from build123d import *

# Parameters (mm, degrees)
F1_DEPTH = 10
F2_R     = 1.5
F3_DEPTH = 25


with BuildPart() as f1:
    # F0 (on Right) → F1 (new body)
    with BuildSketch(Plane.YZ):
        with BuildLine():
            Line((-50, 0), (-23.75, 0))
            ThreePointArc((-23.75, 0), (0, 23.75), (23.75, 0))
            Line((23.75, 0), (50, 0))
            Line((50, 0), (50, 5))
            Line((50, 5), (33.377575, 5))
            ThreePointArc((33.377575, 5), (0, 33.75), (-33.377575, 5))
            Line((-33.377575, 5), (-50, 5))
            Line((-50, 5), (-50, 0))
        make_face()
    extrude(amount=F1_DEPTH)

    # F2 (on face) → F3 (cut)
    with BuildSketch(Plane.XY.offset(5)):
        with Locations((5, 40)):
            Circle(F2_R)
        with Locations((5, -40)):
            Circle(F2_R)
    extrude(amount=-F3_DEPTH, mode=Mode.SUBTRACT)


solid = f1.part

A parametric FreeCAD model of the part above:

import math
import FreeCAD as App
import Part
import Sketcher
Q = App.Units.Quantity

doc = App.newDocument("Part")
params = doc.addObject("Spreadsheet::Sheet", "Params")
for row, (alias, value) in enumerate([
    ("sketch1_height", "5 mm"),
    ("sketch1_radius", "23.75 mm"),
    ("sketch1_radius2", "33.75 mm"),
    ("pad1_length", "10 mm"),
    ("sketch2_diameter", "3 mm"),
    ("pocket1_length", "25 mm"),
], start=1):
    params.set(f"A{row}", alias)
    params.set(f"B{row}", "=" + value)
    params.setAlias(f"B{row}", alias)

body = doc.addObject("PartDesign::Body", "Body")

# Sketch on YZ plane
sketch1 = body.newObject("Sketcher::SketchObject", "Sketch")
sketch1.AttachmentSupport = (doc.getObject("YZ_Plane"), [""])
sketch1.MapMode = "FlatFace"
sketch1.addGeometry(Part.LineSegment(App.Vector(-50, 0, 0), App.Vector(-23.75, 0, 0)), False)
sketch1.addGeometry(Part.ArcOfCircle(Part.Circle(App.Vector(0, 0, 0), App.Vector(0, 0, 1), 23.75), math.radians(0), math.radians(180)), False)
sketch1.addGeometry(Part.LineSegment(App.Vector(23.75, 0, 0), App.Vector(50, 0, 0)), False)
sketch1.addGeometry(Part.LineSegment(App.Vector(50, 0, 0), App.Vector(50, 5, 0)), False)
sketch1.addGeometry(Part.LineSegment(App.Vector(50, 5, 0), App.Vector(33.377575, 5, 0)), False)
sketch1.addGeometry(Part.ArcOfCircle(Part.Circle(App.Vector(0, 0, 0), App.Vector(0, 0, 1), 33.75), math.radians(8.519625), math.radians(171.480375)), False)
sketch1.addGeometry(Part.LineSegment(App.Vector(-33.377575, 5, 0), App.Vector(-50, 5, 0)), False)
sketch1.addGeometry(Part.LineSegment(App.Vector(-50, 5, 0), App.Vector(-50, 0, 0)), False)
sketch1.addConstraint(Sketcher.Constraint("Coincident", 0, 2, 1, 2))
sketch1.addConstraint(Sketcher.Constraint("Coincident", 1, 1, 2, 1))
sketch1.addConstraint(Sketcher.Constraint("Coincident", 2, 2, 3, 1))
sketch1.addConstraint(Sketcher.Constraint("Coincident", 3, 2, 4, 1))
sketch1.addConstraint(Sketcher.Constraint("Coincident", 4, 2, 5, 1))
sketch1.addConstraint(Sketcher.Constraint("Coincident", 5, 2, 6, 1))
sketch1.addConstraint(Sketcher.Constraint("Coincident", 6, 2, 7, 1))
sketch1.addConstraint(Sketcher.Constraint("Coincident", 7, 2, 0, 1))
sketch1.addConstraint(Sketcher.Constraint("Horizontal", 0))
sketch1.addConstraint(Sketcher.Constraint("Horizontal", 2))
sketch1.addConstraint(Sketcher.Constraint("Vertical", 3))
sketch1.addConstraint(Sketcher.Constraint("Horizontal", 4))
sketch1.addConstraint(Sketcher.Constraint("Horizontal", 6))
sketch1.addConstraint(Sketcher.Constraint("Vertical", 7))
sketch1.addConstraint(Sketcher.Constraint("Coincident", 1, 3, -1, 1))
sketch1.addConstraint(Sketcher.Constraint("Coincident", 5, 3, -1, 1))
sketch1.addConstraint(Sketcher.Constraint("Symmetric", 2, 2, 7, 2, -1, 1))
sketch1.addConstraint(Sketcher.Constraint("PointOnObject", 0, 2, -1))
sketch1.addConstraint(Sketcher.Constraint("Horizontal", 4, 2, 5, 2))
sketch1.addConstraint(Sketcher.Constraint("DistanceY", 3, 1, 3, 2, Q("5 mm")))
sketch1.addConstraint(Sketcher.Constraint("Radius", 1, Q("23.75 mm")))
sketch1.addConstraint(Sketcher.Constraint("Radius", 5, Q("33.75 mm")))
sketch1.addConstraint(Sketcher.Constraint("DistanceX", -1, 1, 2, 2, Q("50 mm")))
sketch1.setExpression("Constraints[19]", "Params.sketch1_height")
sketch1.setExpression("Constraints[20]", "Params.sketch1_radius")
sketch1.setExpression("Constraints[21]", "Params.sketch1_radius2")
pad1 = body.newObject("PartDesign::Pad", "Pad")
pad1.Profile = sketch1
pad1.setExpression("Length", "Params.pad1_length")

# Sketch on XY plane
sketch2 = body.newObject("Sketcher::SketchObject", "Sketch001")
sketch2.AttachmentSupport = (doc.getObject("XY_Plane"), [""])
sketch2.MapMode = "FlatFace"
sketch2.AttachmentOffset = App.Placement(App.Vector(0, 0, 5), App.Rotation())
sketch2.addGeometry(Part.Circle(App.Vector(5, 40, 0), App.Vector(0, 0, 1), 1.5), False)
sketch2.addGeometry(Part.Circle(App.Vector(5, -40, 0), App.Vector(0, 0, 1), 1.5), False)
sketch2.addConstraint(Sketcher.Constraint("Equal", 0, 1))
sketch2.addConstraint(Sketcher.Constraint("Symmetric", 0, 3, 1, 3, -1))
sketch2.addConstraint(Sketcher.Constraint("Diameter", 0, Q("3 mm")))
sketch2.addConstraint(Sketcher.Constraint("DistanceX", -1, 1, 0, 3, Q("5 mm")))
sketch2.addConstraint(Sketcher.Constraint("DistanceY", -1, 1, 0, 3, Q("40 mm")))
sketch2.setExpression("Constraints[2]", "Params.sketch2_diameter")
pocket1 = body.newObject("PartDesign::Pocket", "Pocket")
pocket1.Profile = sketch2
pocket1.setExpression("Length", "Params.pocket1_length")

doc.recompute()
